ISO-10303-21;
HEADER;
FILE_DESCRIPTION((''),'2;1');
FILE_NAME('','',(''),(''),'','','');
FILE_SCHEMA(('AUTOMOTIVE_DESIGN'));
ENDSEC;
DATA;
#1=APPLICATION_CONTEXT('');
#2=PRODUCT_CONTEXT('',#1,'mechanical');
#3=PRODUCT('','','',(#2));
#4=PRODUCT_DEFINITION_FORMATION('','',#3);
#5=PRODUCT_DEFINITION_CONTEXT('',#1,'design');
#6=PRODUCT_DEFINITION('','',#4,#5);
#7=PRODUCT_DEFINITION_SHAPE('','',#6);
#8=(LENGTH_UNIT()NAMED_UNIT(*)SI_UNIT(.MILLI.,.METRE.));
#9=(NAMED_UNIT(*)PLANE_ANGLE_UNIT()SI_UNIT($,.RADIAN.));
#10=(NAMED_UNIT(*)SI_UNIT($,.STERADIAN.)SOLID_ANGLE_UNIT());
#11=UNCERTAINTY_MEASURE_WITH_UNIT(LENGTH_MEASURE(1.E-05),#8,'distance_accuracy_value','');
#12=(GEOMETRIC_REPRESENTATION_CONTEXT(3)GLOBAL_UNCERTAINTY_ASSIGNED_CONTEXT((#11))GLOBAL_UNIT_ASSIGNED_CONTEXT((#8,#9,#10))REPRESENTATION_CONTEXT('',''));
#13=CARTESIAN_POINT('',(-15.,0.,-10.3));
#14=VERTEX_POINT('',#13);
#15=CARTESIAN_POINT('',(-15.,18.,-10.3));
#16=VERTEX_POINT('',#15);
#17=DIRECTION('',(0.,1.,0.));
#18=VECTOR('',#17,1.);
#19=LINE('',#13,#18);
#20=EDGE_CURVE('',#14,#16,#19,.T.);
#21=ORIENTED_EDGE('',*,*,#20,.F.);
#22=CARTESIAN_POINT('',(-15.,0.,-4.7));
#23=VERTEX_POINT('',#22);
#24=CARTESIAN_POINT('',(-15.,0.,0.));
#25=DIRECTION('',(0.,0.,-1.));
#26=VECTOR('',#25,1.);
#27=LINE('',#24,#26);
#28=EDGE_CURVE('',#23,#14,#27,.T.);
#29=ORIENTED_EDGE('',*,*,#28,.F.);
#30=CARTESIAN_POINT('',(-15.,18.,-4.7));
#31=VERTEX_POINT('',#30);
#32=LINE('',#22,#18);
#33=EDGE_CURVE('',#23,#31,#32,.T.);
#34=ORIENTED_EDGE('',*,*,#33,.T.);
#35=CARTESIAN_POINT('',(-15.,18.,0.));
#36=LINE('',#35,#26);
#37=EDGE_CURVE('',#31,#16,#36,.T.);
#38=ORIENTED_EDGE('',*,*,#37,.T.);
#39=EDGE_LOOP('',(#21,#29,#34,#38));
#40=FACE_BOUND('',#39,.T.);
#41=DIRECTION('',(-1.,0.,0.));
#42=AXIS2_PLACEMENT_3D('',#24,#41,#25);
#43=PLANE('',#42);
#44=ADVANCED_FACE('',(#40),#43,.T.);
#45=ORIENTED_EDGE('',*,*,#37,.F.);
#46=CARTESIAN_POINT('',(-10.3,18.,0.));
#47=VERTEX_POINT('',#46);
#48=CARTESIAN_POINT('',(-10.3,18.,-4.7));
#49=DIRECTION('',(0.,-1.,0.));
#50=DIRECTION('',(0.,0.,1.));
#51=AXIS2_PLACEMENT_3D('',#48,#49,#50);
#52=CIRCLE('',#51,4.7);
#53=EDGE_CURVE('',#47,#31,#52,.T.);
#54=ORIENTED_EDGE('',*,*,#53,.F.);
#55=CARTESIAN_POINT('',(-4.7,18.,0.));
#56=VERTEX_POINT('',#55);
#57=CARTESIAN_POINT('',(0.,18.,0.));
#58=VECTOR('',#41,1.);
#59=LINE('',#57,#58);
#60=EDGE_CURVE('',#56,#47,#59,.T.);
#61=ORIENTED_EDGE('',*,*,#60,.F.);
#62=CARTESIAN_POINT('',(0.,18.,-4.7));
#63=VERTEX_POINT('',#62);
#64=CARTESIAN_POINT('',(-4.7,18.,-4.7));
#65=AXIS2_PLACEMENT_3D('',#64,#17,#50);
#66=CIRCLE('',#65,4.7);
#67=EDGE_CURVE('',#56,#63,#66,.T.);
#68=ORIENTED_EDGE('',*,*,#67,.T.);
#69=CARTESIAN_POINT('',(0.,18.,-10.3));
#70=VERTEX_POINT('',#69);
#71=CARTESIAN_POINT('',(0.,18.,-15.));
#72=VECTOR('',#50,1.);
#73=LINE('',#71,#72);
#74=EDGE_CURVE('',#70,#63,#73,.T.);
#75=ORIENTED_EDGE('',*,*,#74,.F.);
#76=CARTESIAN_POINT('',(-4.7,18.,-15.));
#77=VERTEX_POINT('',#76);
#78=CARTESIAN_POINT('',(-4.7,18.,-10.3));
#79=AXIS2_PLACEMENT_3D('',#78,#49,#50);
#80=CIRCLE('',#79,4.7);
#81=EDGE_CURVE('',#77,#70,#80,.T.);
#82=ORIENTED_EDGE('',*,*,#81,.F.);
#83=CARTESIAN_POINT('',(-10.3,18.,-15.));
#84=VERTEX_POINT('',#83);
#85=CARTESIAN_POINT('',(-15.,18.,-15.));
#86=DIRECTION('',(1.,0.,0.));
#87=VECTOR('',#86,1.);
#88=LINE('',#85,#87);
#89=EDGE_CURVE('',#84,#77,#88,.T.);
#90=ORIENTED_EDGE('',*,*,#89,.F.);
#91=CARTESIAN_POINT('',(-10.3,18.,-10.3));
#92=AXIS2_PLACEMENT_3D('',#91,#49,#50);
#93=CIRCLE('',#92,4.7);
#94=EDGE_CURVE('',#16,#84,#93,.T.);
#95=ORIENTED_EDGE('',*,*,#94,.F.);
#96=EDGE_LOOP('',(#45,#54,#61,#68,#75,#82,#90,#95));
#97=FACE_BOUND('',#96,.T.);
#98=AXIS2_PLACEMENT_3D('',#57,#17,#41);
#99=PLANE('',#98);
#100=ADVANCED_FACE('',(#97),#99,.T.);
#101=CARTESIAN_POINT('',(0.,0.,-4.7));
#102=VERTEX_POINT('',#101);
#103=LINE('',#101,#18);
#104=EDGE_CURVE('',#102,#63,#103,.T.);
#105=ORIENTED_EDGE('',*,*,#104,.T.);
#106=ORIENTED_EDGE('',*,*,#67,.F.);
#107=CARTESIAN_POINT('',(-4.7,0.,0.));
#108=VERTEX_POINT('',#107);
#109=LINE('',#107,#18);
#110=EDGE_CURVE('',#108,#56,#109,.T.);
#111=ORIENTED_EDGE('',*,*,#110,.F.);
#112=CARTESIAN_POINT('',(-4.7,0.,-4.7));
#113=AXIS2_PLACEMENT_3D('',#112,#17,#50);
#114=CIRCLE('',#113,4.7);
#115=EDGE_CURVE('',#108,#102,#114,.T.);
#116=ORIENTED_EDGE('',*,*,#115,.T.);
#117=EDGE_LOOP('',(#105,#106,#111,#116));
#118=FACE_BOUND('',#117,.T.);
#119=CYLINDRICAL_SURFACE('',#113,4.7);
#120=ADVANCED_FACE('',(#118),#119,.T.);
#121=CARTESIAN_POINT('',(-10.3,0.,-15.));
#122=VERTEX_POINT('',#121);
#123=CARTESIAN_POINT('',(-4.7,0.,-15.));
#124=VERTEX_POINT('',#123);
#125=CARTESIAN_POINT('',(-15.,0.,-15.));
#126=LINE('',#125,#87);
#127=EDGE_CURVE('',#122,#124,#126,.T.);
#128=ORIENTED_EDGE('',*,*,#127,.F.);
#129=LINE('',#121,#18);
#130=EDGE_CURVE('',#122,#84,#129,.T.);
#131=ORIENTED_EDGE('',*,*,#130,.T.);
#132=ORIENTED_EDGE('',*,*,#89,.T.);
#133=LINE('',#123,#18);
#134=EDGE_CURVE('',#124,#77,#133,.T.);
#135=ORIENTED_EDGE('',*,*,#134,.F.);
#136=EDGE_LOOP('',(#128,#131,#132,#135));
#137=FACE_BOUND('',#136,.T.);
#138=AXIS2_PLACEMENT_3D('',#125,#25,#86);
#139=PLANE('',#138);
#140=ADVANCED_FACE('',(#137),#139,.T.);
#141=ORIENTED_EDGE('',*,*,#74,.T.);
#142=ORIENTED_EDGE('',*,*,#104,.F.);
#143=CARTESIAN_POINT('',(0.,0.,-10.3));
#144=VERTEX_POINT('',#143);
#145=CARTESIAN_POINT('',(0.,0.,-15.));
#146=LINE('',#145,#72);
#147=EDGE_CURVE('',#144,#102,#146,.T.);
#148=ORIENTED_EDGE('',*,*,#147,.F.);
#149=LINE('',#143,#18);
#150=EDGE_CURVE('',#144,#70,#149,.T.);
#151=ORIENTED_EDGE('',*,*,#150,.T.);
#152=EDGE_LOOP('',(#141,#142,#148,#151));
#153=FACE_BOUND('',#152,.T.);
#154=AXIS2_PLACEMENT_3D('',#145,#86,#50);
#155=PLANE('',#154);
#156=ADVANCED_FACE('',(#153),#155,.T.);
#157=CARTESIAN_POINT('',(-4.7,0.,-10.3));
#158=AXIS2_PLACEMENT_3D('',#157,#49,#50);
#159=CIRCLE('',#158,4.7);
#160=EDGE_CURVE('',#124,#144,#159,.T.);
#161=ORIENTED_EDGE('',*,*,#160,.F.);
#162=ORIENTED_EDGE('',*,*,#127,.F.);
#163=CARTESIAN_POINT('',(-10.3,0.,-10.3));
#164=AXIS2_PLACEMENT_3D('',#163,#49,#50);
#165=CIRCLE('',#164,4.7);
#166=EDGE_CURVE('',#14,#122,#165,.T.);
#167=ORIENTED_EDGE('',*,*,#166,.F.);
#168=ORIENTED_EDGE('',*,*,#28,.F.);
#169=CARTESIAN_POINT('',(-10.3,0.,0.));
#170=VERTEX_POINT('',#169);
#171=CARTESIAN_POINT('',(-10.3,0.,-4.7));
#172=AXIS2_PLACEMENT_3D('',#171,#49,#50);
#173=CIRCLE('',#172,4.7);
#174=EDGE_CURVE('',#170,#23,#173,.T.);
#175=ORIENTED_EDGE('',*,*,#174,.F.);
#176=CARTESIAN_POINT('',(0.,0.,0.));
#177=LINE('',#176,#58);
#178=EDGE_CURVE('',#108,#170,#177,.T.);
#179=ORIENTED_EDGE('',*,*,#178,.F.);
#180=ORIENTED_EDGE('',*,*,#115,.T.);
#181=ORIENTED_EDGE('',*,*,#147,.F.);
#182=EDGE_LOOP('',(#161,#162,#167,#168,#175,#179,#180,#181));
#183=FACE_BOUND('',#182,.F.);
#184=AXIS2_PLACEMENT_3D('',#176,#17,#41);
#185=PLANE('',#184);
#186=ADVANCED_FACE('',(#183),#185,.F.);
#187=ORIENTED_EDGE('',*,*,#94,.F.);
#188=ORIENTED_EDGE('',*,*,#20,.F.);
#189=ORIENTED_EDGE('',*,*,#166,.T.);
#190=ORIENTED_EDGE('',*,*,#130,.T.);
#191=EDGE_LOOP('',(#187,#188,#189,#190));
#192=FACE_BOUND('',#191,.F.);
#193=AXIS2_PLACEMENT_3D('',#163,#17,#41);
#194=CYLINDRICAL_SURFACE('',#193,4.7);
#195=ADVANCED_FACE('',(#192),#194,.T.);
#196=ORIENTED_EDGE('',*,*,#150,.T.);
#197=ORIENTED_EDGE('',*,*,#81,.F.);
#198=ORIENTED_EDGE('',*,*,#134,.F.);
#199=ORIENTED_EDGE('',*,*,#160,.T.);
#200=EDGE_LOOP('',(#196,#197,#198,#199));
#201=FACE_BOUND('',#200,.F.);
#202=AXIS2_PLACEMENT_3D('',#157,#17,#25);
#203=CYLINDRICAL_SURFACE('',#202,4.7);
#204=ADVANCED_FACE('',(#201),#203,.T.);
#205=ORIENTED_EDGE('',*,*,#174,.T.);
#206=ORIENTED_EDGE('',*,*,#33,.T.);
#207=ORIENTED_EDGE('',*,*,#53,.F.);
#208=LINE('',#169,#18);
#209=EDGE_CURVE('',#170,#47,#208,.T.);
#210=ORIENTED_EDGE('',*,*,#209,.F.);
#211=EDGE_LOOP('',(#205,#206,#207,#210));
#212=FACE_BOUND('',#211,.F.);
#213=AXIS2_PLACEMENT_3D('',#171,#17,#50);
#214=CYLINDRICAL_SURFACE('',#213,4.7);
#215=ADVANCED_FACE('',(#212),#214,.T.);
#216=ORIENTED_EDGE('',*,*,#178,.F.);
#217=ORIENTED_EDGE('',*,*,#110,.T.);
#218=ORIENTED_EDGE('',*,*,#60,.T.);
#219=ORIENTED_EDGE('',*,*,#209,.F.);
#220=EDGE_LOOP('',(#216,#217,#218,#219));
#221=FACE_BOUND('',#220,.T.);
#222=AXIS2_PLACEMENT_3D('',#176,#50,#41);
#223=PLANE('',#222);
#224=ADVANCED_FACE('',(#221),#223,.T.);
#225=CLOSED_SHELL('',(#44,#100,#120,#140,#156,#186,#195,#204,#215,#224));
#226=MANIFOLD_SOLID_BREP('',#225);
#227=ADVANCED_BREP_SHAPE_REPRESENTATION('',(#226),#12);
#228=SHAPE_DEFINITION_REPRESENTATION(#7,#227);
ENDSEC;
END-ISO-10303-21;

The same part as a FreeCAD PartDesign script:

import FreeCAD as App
import Part
import Sketcher
from FreeCAD import Vector
Q = App.Units.Quantity


def edges_at(feature, points):
    """Names of the edges that pass closest to the given points."""
    edges = feature.Shape.Edges
    near = lambda p: min(range(len(edges)), key=lambda i: edges[i].distToShape(Part.Vertex(*p))[0])
    return sorted({f"Edge{near(p) + 1}" for p in points})


def add_polygon(sketch, points):
    """Adds a closed chain of lines whose ends are joined by coincident constraints."""
    first, n = sketch.GeometryCount, len(points)
    for a, b in zip(points, points[1:] + points[:1]):
        sketch.addGeometry(Part.LineSegment(App.Vector(*a, 0), App.Vector(*b, 0)), False)
    for i in range(n):
        sketch.addConstraint(Sketcher.Constraint("Coincident", first + i, 2, first + (i + 1) % n, 1))

doc = App.newDocument("Part")
body = doc.addObject("PartDesign::Body", "Body")

# Sketch on XZ plane
sketch1 = body.newObject("Sketcher::SketchObject", "Sketch")
sketch1.AttachmentSupport = (doc.getObject("XZ_Plane"), [""])
sketch1.MapMode = "FlatFace"
add_polygon(sketch1, [(-15, 0), (0, 0), (0, -15), (-15, -15)])  # lines 0-3
sketch1.addConstraint([
    Sketcher.Constraint("Horizontal", 0),
    Sketcher.Constraint("Vertical", 1),
    Sketcher.Constraint("Horizontal", 2),
    Sketcher.Constraint("Vertical", 3),
    Sketcher.Constraint("Coincident", 0, 2, -1, 1),
    Sketcher.Constraint("Equal", 2, 1),
    Sketcher.Constraint("DistanceX", 0, 1, 0, 2, Q("15 mm")),
])
pad1 = body.newObject("PartDesign::Pad", "Pad")
pad1.Profile = sketch1
pad1.Length = 18
pad1.Reversed = True
doc.recompute()

fillet = body.newObject("PartDesign::Fillet", "Fillet")
fillet.Base = (pad1, edges_at(pad1, [
    (0, 9, 0),
    (0, 9, -15),
    (-15, 9, 0),
    (-15, 9, -15),
]))
fillet.Radius = 4.7

doc.recompute()
